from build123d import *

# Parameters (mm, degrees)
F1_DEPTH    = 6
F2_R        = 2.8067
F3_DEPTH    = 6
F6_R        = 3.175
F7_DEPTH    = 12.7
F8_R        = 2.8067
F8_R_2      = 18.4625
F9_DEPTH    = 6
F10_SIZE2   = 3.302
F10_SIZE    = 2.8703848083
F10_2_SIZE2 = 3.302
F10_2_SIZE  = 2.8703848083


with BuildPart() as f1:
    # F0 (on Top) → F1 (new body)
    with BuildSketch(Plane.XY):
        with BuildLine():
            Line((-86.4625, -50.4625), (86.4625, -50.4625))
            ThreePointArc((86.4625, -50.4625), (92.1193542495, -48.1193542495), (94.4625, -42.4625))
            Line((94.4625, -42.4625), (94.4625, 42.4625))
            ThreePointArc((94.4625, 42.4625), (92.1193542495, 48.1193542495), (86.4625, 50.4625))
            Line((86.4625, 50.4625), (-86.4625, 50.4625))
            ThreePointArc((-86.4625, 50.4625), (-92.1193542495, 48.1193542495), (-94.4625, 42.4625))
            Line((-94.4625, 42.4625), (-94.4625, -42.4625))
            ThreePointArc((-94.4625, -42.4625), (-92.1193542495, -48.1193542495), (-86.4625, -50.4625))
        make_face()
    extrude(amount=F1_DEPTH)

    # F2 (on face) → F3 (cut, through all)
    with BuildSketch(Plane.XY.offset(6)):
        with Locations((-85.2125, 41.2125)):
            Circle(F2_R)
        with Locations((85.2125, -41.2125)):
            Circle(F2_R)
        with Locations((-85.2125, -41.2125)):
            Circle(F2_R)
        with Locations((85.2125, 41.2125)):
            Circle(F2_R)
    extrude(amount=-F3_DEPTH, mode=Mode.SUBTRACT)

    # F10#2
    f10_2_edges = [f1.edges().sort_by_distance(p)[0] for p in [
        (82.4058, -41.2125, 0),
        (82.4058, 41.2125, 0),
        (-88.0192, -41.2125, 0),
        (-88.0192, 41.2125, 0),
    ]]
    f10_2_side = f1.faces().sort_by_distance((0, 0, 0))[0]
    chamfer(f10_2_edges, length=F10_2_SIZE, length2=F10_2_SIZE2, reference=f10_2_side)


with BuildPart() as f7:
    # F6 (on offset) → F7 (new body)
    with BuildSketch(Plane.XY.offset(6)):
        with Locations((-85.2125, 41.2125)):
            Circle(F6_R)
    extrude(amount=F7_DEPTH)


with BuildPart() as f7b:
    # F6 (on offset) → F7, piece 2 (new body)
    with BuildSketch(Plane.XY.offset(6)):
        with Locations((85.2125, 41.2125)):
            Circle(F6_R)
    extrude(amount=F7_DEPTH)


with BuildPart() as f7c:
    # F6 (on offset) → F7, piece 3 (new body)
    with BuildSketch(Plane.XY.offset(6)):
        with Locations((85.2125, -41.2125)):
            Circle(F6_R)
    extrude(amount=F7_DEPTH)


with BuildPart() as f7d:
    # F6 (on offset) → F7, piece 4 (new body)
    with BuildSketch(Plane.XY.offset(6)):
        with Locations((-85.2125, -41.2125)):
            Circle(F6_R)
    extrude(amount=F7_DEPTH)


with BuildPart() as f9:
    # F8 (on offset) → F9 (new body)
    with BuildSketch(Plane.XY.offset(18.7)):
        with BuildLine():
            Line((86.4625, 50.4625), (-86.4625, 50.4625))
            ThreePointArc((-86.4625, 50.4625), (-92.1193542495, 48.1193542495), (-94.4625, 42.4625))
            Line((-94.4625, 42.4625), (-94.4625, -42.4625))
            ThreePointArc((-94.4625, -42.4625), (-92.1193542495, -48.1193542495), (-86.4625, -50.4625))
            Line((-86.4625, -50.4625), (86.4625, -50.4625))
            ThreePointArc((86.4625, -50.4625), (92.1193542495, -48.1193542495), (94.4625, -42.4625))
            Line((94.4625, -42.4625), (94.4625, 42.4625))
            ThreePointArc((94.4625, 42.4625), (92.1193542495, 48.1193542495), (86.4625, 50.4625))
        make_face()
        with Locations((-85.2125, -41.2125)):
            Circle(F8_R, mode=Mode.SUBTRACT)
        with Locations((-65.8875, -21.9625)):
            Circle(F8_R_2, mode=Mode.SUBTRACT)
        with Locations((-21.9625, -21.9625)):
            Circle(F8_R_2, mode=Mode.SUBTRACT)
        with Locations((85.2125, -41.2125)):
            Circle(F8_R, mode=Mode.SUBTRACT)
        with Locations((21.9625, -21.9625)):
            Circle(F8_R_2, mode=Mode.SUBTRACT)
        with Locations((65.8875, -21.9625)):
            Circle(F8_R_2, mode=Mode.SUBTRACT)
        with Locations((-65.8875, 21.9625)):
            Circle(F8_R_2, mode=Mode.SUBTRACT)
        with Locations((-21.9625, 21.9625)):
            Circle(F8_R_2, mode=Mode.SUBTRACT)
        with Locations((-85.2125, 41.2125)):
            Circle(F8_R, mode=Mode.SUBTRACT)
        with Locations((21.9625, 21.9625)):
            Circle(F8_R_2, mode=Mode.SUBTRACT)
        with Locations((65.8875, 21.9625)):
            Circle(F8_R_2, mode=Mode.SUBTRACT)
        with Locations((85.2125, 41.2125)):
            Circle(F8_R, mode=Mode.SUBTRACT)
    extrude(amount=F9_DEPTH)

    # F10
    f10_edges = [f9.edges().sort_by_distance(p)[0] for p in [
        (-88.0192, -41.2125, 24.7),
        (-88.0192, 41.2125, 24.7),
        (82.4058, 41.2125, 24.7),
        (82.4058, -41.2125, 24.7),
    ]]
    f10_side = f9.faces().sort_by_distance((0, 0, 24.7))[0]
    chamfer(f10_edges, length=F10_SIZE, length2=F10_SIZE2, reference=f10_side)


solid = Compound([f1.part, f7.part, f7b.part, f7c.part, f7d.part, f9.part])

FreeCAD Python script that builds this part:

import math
import FreeCAD as App
import Part
import Sketcher

V = App.Vector
Q = App.Units.Quantity


def edges_at(feature, points):
    """Names of the edges that pass closest to the given points."""
    edges = feature.Shape.Edges
    near = lambda p: min(range(len(edges)), key=lambda i: edges[i].distToShape(Part.Vertex(*p))[0])
    return sorted({f"Edge{near(p) + 1}" for p in points})

doc = App.newDocument("Part")
params = doc.addObject("Spreadsheet::Sheet", "Params")
for row, (alias, value) in enumerate([
    ("pad1_length", "6 mm"),
    ("sketch2_diameter", "0.221 in"),
    ("chamfer_size", "2.870385 mm"),
    ("chamfer_size2", "0.13 in"),
    ("sketch3_diameter", "0.25 in"),
    ("pad2_length", "0.5 in"),
    ("sketch4_diameter", "0.25 in"),
    ("pad3_length", "0.5 in"),
    ("sketch5_diameter", "0.25 in"),
    ("pad4_length", "0.5 in"),
    ("sketch6_diameter", "0.25 in"),
    ("pad5_length", "0.5 in"),
    ("sketch7_diameter", "0.221 in"),
    ("pad6_length", "6 mm"),
    ("chamfer2_size", "2.870385 mm"),
    ("chamfer2_size2", "0.13 in"),
], start=1):
    params.set(f"A{row}", alias)
    params.set(f"B{row}", "=" + value)
    params.setAlias(f"B{row}", alias)

body = doc.addObject("PartDesign::Body", "Body")

sketch1 = body.newObject("Sketcher::SketchObject", "Sketch")
sketch1.AttachmentSupport = (doc.getObject("XY_Plane"), [""])
sketch1.MapMode = "FlatFace"
sketch1.addGeometry(Part.LineSegment(V(-86, -50, 0), V(86, -50, 0)), False)
sketch1.addGeometry(Part.ArcOfCircle(Part.Circle(V(86, -42, 0), V(0, 0, 1), 8), math.radians(-90), math.radians(0)), False)
sketch1.addGeometry(Part.LineSegment(V(94, -42, 0), V(94, 42, 0)), False)
sketch1.addGeometry(Part.ArcOfCircle(Part.Circle(V(86, 42, 0), V(0, 0, 1), 8), math.radians(0), math.radians(90)), False)
sketch1.addGeometry(Part.LineSegment(V(86, 50, 0), V(-86, 50, 0)), False)
sketch1.addGeometry(Part.ArcOfCircle(Part.Circle(V(-86, 42, 0), V(0, 0, 1), 8), math.radians(90), math.radians(180)), False)
sketch1.addGeometry(Part.LineSegment(V(-94, 42, 0), V(-94, -42, 0)), False)
sketch1.addGeometry(Part.ArcOfCircle(Part.Circle(V(-86, -42, 0), V(0, 0, 1), 8), math.radians(180), math.radians(270)), False)
sketch1.addConstraint(Sketcher.Constraint("Tangent", 0, 2, 1, 1))
sketch1.addConstraint(Sketcher.Constraint("Tangent", 1, 2, 2, 1))
sketch1.addConstraint(Sketcher.Constraint("Tangent", 2, 2, 3, 1))
sketch1.addConstraint(Sketcher.Constraint("Tangent", 3, 2, 4, 1))
sketch1.addConstraint(Sketcher.Constraint("Tangent", 4, 2, 5, 1))
sketch1.addConstraint(Sketcher.Constraint("Tangent", 5, 2, 6, 1))
sketch1.addConstraint(Sketcher.Constraint("Tangent", 6, 2, 7, 1))
sketch1.addConstraint(Sketcher.Constraint("Tangent", 7, 2, 0, 1))
sketch1.addConstraint(Sketcher.Constraint("Horizontal", 0))
sketch1.addConstraint(Sketcher.Constraint("Vertical", 2))
sketch1.addConstraint(Sketcher.Constraint("Horizontal", 4))
sketch1.addConstraint(Sketcher.Constraint("Vertical", 6))
sketch1.addConstraint(Sketcher.Constraint("Equal", 1, 3))
sketch1.addConstraint(Sketcher.Constraint("Equal", 3, 5))
sketch1.addConstraint(Sketcher.Constraint("Equal", 5, 7))
sketch1.addConstraint(Sketcher.Constraint("Symmetric", 1, 3, 5, 3, -1, 1))
sketch1.addConstraint(Sketcher.Constraint("Radius", 1, Q("8 mm")))
sketch1.addConstraint(Sketcher.Constraint("DistanceX", 0, 1, 0, 2, Q("172.925 mm")))
sketch1.addConstraint(Sketcher.Constraint("DistanceY", 2, 1, 2, 2, Q("84.925 mm")))
pad1 = body.newObject("PartDesign::Pad", "Pad")
pad1.Profile = sketch1
pad1.setExpression("Length", "Params.pad1_length")

sketch2 = body.newObject("Sketcher::SketchObject", "Sketch001")
sketch2.AttachmentSupport = (doc.getObject("XY_Plane"), [""])
sketch2.MapMode = "FlatFace"
sketch2.AttachmentOffset = App.Placement(V(0, 0, 6), App.Rotation())
sketch2.addGeometry(Part.Circle(V(-85.2, 41.2, 0), V(0, 0, 1), 2.8), False)
sketch2.addGeometry(Part.Circle(V(85.2, -41.2, 0), V(0, 0, 1), 2.8), False)
sketch2.addGeometry(Part.Circle(V(-85.2, -41.2, 0), V(0, 0, 1), 2.8), False)
sketch2.addGeometry(Part.Circle(V(85.2, 41.2, 0), V(0, 0, 1), 2.8), False)
sketch2.addConstraint(Sketcher.Constraint("Equal", 0, 1))
sketch2.addConstraint(Sketcher.Constraint("Equal", 1, 2))
sketch2.addConstraint(Sketcher.Constraint("Equal", 2, 3))
sketch2.addConstraint(Sketcher.Constraint("Symmetric", 0, 3, 1, 3, -1, 1))
sketch2.addConstraint(Sketcher.Constraint("Symmetric", 2, 3, 3, 3, -1, 1))
sketch2.addConstraint(Sketcher.Constraint("Symmetric", 1, 3, 2, 3, -2))
sketch2.addConstraint(Sketcher.Constraint("Diameter", 0, Q("0.221 in")))
sketch2.addConstraint(Sketcher.Constraint("DistanceX", 0, 3, -1, 1, Q("85.2125 mm")))
sketch2.addConstraint(Sketcher.Constraint("DistanceY", -1, 1, 0, 3, Q("41.2125 mm")))
sketch2.setExpression("Constraints[6]", "Params.sketch2_diameter")
pocket1 = body.newObject("PartDesign::Pocket", "Pocket")
pocket1.Profile = sketch2
pocket1.Type = "ThroughAll"
doc.recompute()

chamfer = body.newObject("PartDesign::Chamfer", "Chamfer")
chamfer.Base = (pocket1, edges_at(pocket1, [
    (82.406, -41.212, 0),
    (82.406, 41.212, 0),
    (-88.019, -41.212, 0),
    (-88.019, 41.212, 0),
]))
chamfer.ChamferType = "Two distances"
chamfer.setExpression("Size", "Params.chamfer_size")
chamfer.setExpression("Size2", "Params.chamfer_size2")
body2 = doc.addObject("PartDesign::Body", "Body001")

sketch3 = body2.newObject("Sketcher::SketchObject", "Sketch002")
sketch3.AttachmentSupport = (doc.getObject("XY_Plane001"), [""])
sketch3.MapMode = "FlatFace"
sketch3.AttachmentOffset = App.Placement(V(0, 0, 6), App.Rotation())
sketch3.addGeometry(Part.Circle(V(-85.2, 41.2, 0), V(0, 0, 1), 3.2), False)
sketch3.addConstraint(Sketcher.Constraint("Diameter", 0, Q("0.25 in")))
sketch3.addConstraint(Sketcher.Constraint("DistanceX", 0, 3, -1, 1, Q("85.2125 mm")))
sketch3.addConstraint(Sketcher.Constraint("DistanceY", -1, 1, 0, 3, Q("41.2125 mm")))
sketch3.setExpression("Constraints[0]", "Params.sketch3_diameter")
pad2 = body2.newObject("PartDesign::Pad", "Pad001")
pad2.Profile = sketch3
pad2.setExpression("Length", "Params.pad2_length")
body3 = doc.addObject("PartDesign::Body", "Body002")

sketch4 = body3.newObject("Sketcher::SketchObject", "Sketch003")
sketch4.AttachmentSupport = (doc.getObject("XY_Plane002"), [""])
sketch4.MapMode = "FlatFace"
sketch4.AttachmentOffset = App.Placement(V(0, 0, 6), App.Rotation())
sketch4.addGeometry(Part.Circle(V(85.2, 41.2, 0), V(0, 0, 1), 3.2), False)
sketch4.addConstraint(Sketcher.Constraint("Diameter", 0, Q("0.25 in")))
sketch4.addConstraint(Sketcher.Constraint("DistanceX", -1, 1, 0, 3, Q("85.2125 mm")))
sketch4.addConstraint(Sketcher.Constraint("DistanceY", -1, 1, 0, 3, Q("41.2125 mm")))
sketch4.setExpression("Constraints[0]", "Params.sketch4_diameter")
pad3 = body3.newObject("PartDesign::Pad", "Pad002")
pad3.Profile = sketch4
pad3.setExpression("Length", "Params.pad3_length")
body4 = doc.addObject("PartDesign::Body", "Body003")

sketch5 = body4.newObject("Sketcher::SketchObject", "Sketch004")
sketch5.AttachmentSupport = (doc.getObject("XY_Plane003"), [""])
sketch5.MapMode = "FlatFace"
sketch5.AttachmentOffset = App.Placement(V(0, 0, 6), App.Rotation())
sketch5.addGeometry(Part.Circle(V(85.2, -41.2, 0), V(0, 0, 1), 3.2), False)
sketch5.addConstraint(Sketcher.Constraint("Diameter", 0, Q("0.25 in")))
sketch5.addConstraint(Sketcher.Constraint("DistanceX", -1, 1, 0, 3, Q("85.2125 mm")))
sketch5.addConstraint(Sketcher.Constraint("DistanceY", 0, 3, -1, 1, Q("41.2125 mm")))
sketch5.setExpression("Constraints[0]", "Params.sketch5_diameter")
pad4 = body4.newObject("PartDesign::Pad", "Pad003")
pad4.Profile = sketch5
pad4.setExpression("Length", "Params.pad4_length")
body5 = doc.addObject("PartDesign::Body", "Body004")

sketch6 = body5.newObject("Sketcher::SketchObject", "Sketch005")
sketch6.AttachmentSupport = (doc.getObject("XY_Plane004"), [""])
sketch6.MapMode = "FlatFace"
sketch6.AttachmentOffset = App.Placement(V(0, 0, 6), App.Rotation())
sketch6.addGeometry(Part.Circle(V(-85.2, -41.2, 0), V(0, 0, 1), 3.2), False)
sketch6.addConstraint(Sketcher.Constraint("Diameter", 0, Q("0.25 in")))
sketch6.addConstraint(Sketcher.Constraint("DistanceX", 0, 3, -1, 1, Q("85.2125 mm")))
sketch6.addConstraint(Sketcher.Constraint("DistanceY", 0, 3, -1, 1, Q("41.2125 mm")))
sketch6.setExpression("Constraints[0]", "Params.sketch6_diameter")
pad5 = body5.newObject("PartDesign::Pad", "Pad004")
pad5.Profile = sketch6
pad5.setExpression("Length", "Params.pad5_length")
body6 = doc.addObject("PartDesign::Body", "Body005")

sketch7 = body6.newObject("Sketcher::SketchObject", "Sketch006")
sketch7.AttachmentSupport = (doc.getObject("XY_Plane005"), [""])
sketch7.MapMode = "FlatFace"
sketch7.AttachmentOffset = App.Placement(V(0, 0, 18.7), App.Rotation())
sketch7.addGeometry(Part.LineSegment(V(86.5, 50.5, 0), V(-86.5, 50.5, 0)), False)
sketch7.addGeometry(Part.ArcOfCircle(Part.Circle(V(-86.5, 42.5, 0), V(0, 0, 1), 8), math.radians(90), math.radians(180)), False)
sketch7.addGeometry(Part.LineSegment(V(-94.5, 42.5, 0), V(-94.5, -42.5, 0)), False)
sketch7.addGeometry(Part.ArcOfCircle(Part.Circle(V(-86.5, -42.5, 0), V(0, 0, 1), 8), math.radians(180), math.radians(270)), False)
sketch7.addGeometry(Part.LineSegment(V(-86.5, -50.5, 0), V(86.5, -50.5, 0)), False)
sketch7.addGeometry(Part.ArcOfCircle(Part.Circle(V(86.5, -42.5, 0), V(0, 0, 1), 8), math.radians(-90), math.radians(0)), False)
sketch7.addGeometry(Part.LineSegment(V(94.5, -42.5, 0), V(94.5, 42.5, 0)), False)
sketch7.addGeometry(Part.ArcOfCircle(Part.Circle(V(86.5, 42.5, 0), V(0, 0, 1), 8), math.radians(0), math.radians(90)), False)
sketch7.addGeometry(Part.Circle(V(-85.2, -41.2, 0), V(0, 0, 1), 2.8), False)
sketch7.addGeometry(Part.Circle(V(-65.9, -22, 0), V(0, 0, 1), 18.5), False)
sketch7.addGeometry(Part.Circle(V(-22, -22, 0), V(0, 0, 1), 18.5), False)
sketch7.addGeometry(Part.Circle(V(85.2, -41.2, 0), V(0, 0, 1), 2.8), False)
sketch7.addGeometry(Part.Circle(V(22, -22, 0), V(0, 0, 1), 18.5), False)
sketch7.addGeometry(Part.Circle(V(65.9, -22, 0), V(0, 0, 1), 18.5), False)
sketch7.addGeometry(Part.Circle(V(-65.9, 22, 0), V(0, 0, 1), 18.5), False)
sketch7.addGeometry(Part.Circle(V(-22, 22, 0), V(0, 0, 1), 18.5), False)
sketch7.addGeometry(Part.Circle(V(-85.2, 41.2, 0), V(0, 0, 1), 2.8), False)
sketch7.addGeometry(Part.Circle(V(22, 22, 0), V(0, 0, 1), 18.5), False)
sketch7.addGeometry(Part.Circle(V(65.9, 22, 0), V(0, 0, 1), 18.5), False)
sketch7.addGeometry(Part.Circle(V(85.2, 41.2, 0), V(0, 0, 1), 2.8), False)
sketch7.addConstraint(Sketcher.Constraint("Tangent", 0, 2, 1, 1))
sketch7.addConstraint(Sketcher.Constraint("Tangent", 1, 2, 2, 1))
sketch7.addConstraint(Sketcher.Constraint("Tangent", 2, 2, 3, 1))
sketch7.addConstraint(Sketcher.Constraint("Tangent", 3, 2, 4, 1))
sketch7.addConstraint(Sketcher.Constraint("Tangent", 4, 2, 5, 1))
sketch7.addConstraint(Sketcher.Constraint("Tangent", 5, 2, 6, 1))
sketch7.addConstraint(Sketcher.Constraint("Tangent", 6, 2, 7, 1))
sketch7.addConstraint(Sketcher.Constraint("Tangent", 7, 2, 0, 1))
sketch7.addConstraint(Sketcher.Constraint("Horizontal", 0))
sketch7.addConstraint(Sketcher.Constraint("Vertical", 2))
sketch7.addConstraint(Sketcher.Constraint("Horizontal", 4))
sketch7.addConstraint(Sketcher.Constraint("Vertical", 6))
sketch7.addConstraint(Sketcher.Constraint("Equal", 1, 3))
sketch7.addConstraint(Sketcher.Constraint("Equal", 3, 5))
sketch7.addConstraint(Sketcher.Constraint("Equal", 5, 7))
sketch7.addConstraint(Sketcher.Constraint("Equal", 9, 10))
sketch7.addConstraint(Sketcher.Constraint("Equal", 8, 11))
sketch7.addConstraint(Sketcher.Constraint("Equal", 10, 12))
sketch7.addConstraint(Sketcher.Constraint("Equal", 12, 13))
sketch7.addConstraint(Sketcher.Constraint("Equal", 13, 14))
sketch7.addConstraint(Sketcher.Constraint("Equal", 14, 15))
sketch7.addConstraint(Sketcher.Constraint("Equal", 11, 16))
sketch7.addConstraint(Sketcher.Constraint("Equal", 15, 17))
sketch7.addConstraint(Sketcher.Constraint("Equal", 17, 18))
sketch7.addConstraint(Sketcher.Constraint("Equal", 16, 19))
sketch7.addConstraint(Sketcher.Constraint("Symmetric", 1, 3, 5, 3, -1, 1))
sketch7.addConstraint(Sketcher.Constraint("Symmetric", 13, 3, 14, 3, -1, 1))
sketch7.addConstraint(Sketcher.Constraint("Symmetric", 12, 3, 15, 3, -1, 1))
sketch7.addConstraint(Sketcher.Constraint("Symmetric", 11, 3, 16, 3, -1, 1))
sketch7.addConstraint(Sketcher.Constraint("Symmetric", 10, 3, 17, 3, -1, 1))
sketch7.addConstraint(Sketcher.Constraint("Symmetric", 9, 3, 18, 3, -1, 1))
sketch7.addConstraint(Sketcher.Constraint("Symmetric", 8, 3, 19, 3, -1, 1))
sketch7.addConstraint(Sketcher.Constraint("Symmetric", 8, 3, 11, 3, -2))
sketch7.addConstraint(Sketcher.Constraint("Symmetric", 10, 3, 12, 3, -2))
sketch7.addConstraint(Sketcher.Constraint("Symmetric", 9, 3, 13, 3, -2))
sketch7.addConstraint(Sketcher.Constraint("Horizontal", 9, 3, 10, 3))
sketch7.addConstraint(Sketcher.Constraint("Diameter", 8, Q("0.221 in")))
sketch7.addConstraint(Sketcher.Constraint("Diameter", 9, Q("36.925 mm")))
sketch7.addConstraint(Sketcher.Constraint("Radius", 1, Q("8 mm")))
sketch7.addConstraint(Sketcher.Constraint("DistanceX", 1, 2, 14, 3, Q("1.125 in")))
sketch7.addConstraint(Sketcher.Constraint("DistanceX", 0, 2, 0, 1, Q("172.925 mm")))
sketch7.addConstraint(Sketcher.Constraint("DistanceY", 2, 2, 2, 1, Q("84.925 mm")))
sketch7.addConstraint(Sketcher.Constraint("DistanceX", 8, 3, -1, 1, Q("85.2125 mm")))
sketch7.addConstraint(Sketcher.Constraint("DistanceY", 8, 3, -1, 1, Q("41.2125 mm")))
sketch7.addConstraint(Sketcher.Constraint("DistanceY", 9, 3, -1, 1, Q("21.9625 mm")))
sketch7.addConstraint(Sketcher.Constraint("DistanceX", 10, 3, -1, 1, Q("21.9625 mm")))
sketch7.setExpression("Constraints[36]", "Params.sketch7_diameter")
pad6 = body6.newObject("PartDesign::Pad", "Pad005")
pad6.Profile = sketch7
pad6.setExpression("Length", "Params.pad6_length")
doc.recompute()

chamfer2 = body6.newObject("PartDesign::Chamfer", "Chamfer001")
chamfer2.Base = (pad6, edges_at(pad6, [
    (-88.019, -41.212, 24.7),
    (-88.019, 41.212, 24.7),
    (82.406, 41.212, 24.7),
    (82.406, -41.212, 24.7),
]))
chamfer2.ChamferType = "Two distances"
chamfer2.setExpression("Size", "Params.chamfer2_size")
chamfer2.setExpression("Size2", "Params.chamfer2_size2")
chamfer2.FlipDirection = True

doc.recompute()
